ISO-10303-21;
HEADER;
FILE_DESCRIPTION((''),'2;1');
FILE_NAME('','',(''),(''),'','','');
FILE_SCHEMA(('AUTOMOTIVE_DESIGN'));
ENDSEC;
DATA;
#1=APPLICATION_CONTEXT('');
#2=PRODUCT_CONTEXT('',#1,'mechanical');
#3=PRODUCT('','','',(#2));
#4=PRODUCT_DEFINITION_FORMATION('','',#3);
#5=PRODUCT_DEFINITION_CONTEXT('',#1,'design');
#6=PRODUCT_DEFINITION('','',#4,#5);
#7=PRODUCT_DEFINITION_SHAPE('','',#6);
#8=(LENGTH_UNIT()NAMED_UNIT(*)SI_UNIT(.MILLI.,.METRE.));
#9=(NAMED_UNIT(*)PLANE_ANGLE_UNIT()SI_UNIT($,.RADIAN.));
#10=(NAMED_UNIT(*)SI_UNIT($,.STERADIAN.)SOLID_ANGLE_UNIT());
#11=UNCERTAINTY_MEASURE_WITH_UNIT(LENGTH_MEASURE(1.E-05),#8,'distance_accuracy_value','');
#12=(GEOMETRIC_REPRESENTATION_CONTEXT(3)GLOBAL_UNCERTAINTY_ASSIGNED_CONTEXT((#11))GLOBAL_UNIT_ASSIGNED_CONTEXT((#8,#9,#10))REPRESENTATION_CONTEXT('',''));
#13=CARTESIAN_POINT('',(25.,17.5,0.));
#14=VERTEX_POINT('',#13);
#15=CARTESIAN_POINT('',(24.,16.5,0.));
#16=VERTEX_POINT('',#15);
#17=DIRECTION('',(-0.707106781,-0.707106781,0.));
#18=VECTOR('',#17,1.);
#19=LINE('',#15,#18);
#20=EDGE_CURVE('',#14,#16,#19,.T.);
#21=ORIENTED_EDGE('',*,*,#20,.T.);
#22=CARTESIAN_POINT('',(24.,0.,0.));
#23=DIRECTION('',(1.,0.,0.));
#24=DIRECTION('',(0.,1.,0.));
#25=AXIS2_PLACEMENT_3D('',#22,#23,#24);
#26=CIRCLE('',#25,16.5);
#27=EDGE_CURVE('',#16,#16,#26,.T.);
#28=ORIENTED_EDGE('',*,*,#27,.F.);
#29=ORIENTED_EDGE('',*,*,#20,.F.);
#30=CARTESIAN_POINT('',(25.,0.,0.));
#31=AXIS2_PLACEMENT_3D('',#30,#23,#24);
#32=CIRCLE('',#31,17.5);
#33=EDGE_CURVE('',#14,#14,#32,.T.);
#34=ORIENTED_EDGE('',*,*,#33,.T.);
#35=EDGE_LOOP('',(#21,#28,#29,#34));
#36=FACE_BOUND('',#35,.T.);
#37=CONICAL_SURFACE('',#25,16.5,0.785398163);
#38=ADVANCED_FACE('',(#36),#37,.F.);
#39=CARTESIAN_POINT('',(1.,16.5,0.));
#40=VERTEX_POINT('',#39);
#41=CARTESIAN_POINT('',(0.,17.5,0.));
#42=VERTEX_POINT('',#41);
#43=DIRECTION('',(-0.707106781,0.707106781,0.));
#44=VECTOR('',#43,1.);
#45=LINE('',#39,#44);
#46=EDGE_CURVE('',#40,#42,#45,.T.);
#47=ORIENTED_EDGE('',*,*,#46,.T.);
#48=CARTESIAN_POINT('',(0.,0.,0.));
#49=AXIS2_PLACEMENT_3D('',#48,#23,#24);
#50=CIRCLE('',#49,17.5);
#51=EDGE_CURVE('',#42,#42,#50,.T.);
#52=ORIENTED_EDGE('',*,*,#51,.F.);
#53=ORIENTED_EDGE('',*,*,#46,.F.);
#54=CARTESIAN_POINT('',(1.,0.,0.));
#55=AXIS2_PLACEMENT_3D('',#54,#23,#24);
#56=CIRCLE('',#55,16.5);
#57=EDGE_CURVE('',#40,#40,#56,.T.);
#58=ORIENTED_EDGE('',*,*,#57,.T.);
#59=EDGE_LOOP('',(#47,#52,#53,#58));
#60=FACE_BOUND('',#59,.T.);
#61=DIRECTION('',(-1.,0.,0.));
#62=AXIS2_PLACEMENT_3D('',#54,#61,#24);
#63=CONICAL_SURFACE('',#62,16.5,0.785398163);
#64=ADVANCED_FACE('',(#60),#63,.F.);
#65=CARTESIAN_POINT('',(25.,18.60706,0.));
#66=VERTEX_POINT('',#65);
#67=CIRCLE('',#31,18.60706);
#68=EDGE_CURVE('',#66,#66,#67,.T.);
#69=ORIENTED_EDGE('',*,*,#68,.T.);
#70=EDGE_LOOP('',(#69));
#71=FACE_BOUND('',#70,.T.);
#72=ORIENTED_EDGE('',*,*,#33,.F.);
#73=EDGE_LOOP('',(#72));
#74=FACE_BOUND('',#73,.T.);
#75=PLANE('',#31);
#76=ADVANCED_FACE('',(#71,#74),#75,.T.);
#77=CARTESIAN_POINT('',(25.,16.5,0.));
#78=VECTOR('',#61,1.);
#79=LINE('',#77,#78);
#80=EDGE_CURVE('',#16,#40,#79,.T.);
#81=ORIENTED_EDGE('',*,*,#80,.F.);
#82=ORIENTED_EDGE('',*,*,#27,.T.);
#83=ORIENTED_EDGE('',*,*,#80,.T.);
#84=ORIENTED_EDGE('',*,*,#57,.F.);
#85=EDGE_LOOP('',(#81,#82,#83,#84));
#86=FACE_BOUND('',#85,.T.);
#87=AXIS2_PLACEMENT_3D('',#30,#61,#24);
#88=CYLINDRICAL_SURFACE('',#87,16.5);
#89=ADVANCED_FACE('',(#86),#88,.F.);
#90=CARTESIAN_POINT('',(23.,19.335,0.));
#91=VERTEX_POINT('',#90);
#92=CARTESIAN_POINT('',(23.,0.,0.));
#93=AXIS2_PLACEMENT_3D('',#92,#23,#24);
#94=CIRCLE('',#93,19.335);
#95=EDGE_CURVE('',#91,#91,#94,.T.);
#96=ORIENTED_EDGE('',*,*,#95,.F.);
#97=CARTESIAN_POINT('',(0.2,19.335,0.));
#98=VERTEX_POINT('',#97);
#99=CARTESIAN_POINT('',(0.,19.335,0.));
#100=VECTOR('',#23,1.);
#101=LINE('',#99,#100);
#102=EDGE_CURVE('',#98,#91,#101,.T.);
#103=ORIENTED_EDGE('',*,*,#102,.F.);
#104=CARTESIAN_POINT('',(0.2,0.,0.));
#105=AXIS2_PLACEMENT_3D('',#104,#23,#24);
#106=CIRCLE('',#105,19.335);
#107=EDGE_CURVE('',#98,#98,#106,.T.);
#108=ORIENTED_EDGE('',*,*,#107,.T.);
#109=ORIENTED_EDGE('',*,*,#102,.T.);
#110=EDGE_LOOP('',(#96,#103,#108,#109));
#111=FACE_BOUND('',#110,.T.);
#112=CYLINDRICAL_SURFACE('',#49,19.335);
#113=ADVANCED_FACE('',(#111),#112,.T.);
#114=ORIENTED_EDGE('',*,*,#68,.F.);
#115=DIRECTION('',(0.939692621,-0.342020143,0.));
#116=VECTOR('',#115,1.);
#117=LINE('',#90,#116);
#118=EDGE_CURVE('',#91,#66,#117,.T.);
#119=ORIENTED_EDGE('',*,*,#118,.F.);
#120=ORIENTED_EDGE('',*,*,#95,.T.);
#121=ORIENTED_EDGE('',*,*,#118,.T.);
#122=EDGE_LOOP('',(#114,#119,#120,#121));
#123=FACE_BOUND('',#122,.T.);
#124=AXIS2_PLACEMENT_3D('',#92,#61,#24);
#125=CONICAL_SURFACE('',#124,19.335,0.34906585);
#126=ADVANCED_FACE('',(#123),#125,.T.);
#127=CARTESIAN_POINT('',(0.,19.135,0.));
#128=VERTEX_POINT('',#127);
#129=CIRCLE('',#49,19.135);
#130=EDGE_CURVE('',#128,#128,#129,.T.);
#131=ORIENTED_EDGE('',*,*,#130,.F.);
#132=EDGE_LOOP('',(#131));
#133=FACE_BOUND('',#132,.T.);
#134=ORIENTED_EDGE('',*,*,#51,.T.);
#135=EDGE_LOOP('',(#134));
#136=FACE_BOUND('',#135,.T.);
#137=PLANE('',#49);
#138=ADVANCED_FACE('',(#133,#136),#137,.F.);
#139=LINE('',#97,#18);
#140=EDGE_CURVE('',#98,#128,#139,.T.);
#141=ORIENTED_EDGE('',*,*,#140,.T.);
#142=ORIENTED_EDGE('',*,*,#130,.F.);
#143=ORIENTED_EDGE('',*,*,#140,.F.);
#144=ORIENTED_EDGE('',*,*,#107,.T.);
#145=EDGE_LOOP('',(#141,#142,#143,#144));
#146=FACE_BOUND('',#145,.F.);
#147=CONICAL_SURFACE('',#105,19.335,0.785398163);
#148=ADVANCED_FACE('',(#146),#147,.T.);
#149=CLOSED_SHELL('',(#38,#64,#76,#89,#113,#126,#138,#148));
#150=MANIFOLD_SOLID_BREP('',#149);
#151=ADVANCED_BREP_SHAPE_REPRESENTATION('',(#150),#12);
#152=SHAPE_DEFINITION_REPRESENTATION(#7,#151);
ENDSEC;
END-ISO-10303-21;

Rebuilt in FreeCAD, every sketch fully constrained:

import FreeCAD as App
import Part
import Sketcher
from FreeCAD import Vector
Q = App.Units.Quantity


def edges_at(feature, points):
    """Names of the edges that pass closest to the given points."""
    edges = feature.Shape.Edges
    near = lambda p: min(range(len(edges)), key=lambda i: edges[i].distToShape(Part.Vertex(*p))[0])
    return sorted({f"Edge{near(p) + 1}" for p in points})

doc = App.newDocument("Part")
params = doc.addObject("Spreadsheet::Sheet", "Params")
for row, (alias, value) in enumerate([
    ("sketch1_width", "25 mm"),
    ("revolution_angle", "360 deg"),
    ("chamfer_size", "1 mm"),
    ("chamfer2_size", "0.2 mm"),
    ("chamfer3_size", "2 mm"),
], start=1):
    params.set(f"A{row}", alias)
    params.set(f"B{row}", "=" + value)
    params.setAlias(f"B{row}", alias)

body = doc.addObject("PartDesign::Body", "Body")

# Sketch on XY plane
sketch1 = doc.addObject("Sketcher::SketchObject", "Sketch")
body.addObject(sketch1)
sketch1.AttachmentSupport = (doc.XY_Plane, [""])
sketch1.MapMode = "FlatFace"
sketch1.addGeometry([
    Part.LineSegment(Vector(25, 19.335, 0), Vector(0, 19.335, 0)),
    Part.LineSegment(Vector(0, 19.335, 0), Vector(0, 16.5, 0)),
    Part.LineSegment(Vector(0, 16.5, 0), Vector(25, 16.5, 0)),
    Part.LineSegment(Vector(25, 16.5, 0), Vector(25, 19.335, 0)),
], False)
sketch1.addConstraint([
    Sketcher.Constraint("Coincident", 0, 2, 1, 1),
    Sketcher.Constraint("Coincident", 1, 2, 2, 1),
    Sketcher.Constraint("Coincident", 2, 2, 3, 1),
    Sketcher.Constraint("Coincident", 3, 2, 0, 1),
    Sketcher.Constraint("Horizontal", 0),
    Sketcher.Constraint("Vertical", 1),
    Sketcher.Constraint("Horizontal", 2),
    Sketcher.Constraint("Vertical", 3),
    Sketcher.Constraint("PointOnObject", 0, 2, -2),
    Sketcher.Constraint("DistanceX", 0, 2, 0, 1, Q("25 mm")),
    Sketcher.Constraint("DistanceY", -1, 1, 1, 2, Q("16.5 mm")),
    Sketcher.Constraint("DistanceY", 1, 2, 1, 1, Q("2.835 mm")),
])
sketch1.setExpression("Constraints[9]", "Params.sketch1_width")
revolution = doc.addObject("PartDesign::Revolution", "Revolution")
body.addObject(revolution)
revolution.Profile = sketch1
revolution.ReferenceAxis = (sketch1, ["H_Axis"])
revolution.setExpression("Angle", "Params.revolution_angle")
doc.recompute()

chamfer = doc.addObject("PartDesign::Chamfer", "Chamfer")
body.addObject(chamfer)
chamfer.Base = (revolution, edges_at(revolution, [(25, -16.5, 0), (0, -16.5, 0)]))
chamfer.setExpression("Size", "Params.chamfer_size")
doc.recompute()

chamfer2 = doc.addObject("PartDesign::Chamfer", "Chamfer001")
body.addObject(chamfer2)
chamfer2.Base = (chamfer, edges_at(chamfer, [(0, -19.335, 0)]))
chamfer2.setExpression("Size", "Params.chamfer2_size")
doc.recompute()

chamfer3 = doc.addObject("PartDesign::Chamfer", "Chamfer002")
body.addObject(chamfer3)
chamfer3.Base = (chamfer2, edges_at(chamfer2, [(25, -19.335, 0)]))
chamfer3.ChamferType = "Distance and Angle"
chamfer3.setExpression("Size", "Params.chamfer3_size")
chamfer3.Angle = 20

doc.recompute()
